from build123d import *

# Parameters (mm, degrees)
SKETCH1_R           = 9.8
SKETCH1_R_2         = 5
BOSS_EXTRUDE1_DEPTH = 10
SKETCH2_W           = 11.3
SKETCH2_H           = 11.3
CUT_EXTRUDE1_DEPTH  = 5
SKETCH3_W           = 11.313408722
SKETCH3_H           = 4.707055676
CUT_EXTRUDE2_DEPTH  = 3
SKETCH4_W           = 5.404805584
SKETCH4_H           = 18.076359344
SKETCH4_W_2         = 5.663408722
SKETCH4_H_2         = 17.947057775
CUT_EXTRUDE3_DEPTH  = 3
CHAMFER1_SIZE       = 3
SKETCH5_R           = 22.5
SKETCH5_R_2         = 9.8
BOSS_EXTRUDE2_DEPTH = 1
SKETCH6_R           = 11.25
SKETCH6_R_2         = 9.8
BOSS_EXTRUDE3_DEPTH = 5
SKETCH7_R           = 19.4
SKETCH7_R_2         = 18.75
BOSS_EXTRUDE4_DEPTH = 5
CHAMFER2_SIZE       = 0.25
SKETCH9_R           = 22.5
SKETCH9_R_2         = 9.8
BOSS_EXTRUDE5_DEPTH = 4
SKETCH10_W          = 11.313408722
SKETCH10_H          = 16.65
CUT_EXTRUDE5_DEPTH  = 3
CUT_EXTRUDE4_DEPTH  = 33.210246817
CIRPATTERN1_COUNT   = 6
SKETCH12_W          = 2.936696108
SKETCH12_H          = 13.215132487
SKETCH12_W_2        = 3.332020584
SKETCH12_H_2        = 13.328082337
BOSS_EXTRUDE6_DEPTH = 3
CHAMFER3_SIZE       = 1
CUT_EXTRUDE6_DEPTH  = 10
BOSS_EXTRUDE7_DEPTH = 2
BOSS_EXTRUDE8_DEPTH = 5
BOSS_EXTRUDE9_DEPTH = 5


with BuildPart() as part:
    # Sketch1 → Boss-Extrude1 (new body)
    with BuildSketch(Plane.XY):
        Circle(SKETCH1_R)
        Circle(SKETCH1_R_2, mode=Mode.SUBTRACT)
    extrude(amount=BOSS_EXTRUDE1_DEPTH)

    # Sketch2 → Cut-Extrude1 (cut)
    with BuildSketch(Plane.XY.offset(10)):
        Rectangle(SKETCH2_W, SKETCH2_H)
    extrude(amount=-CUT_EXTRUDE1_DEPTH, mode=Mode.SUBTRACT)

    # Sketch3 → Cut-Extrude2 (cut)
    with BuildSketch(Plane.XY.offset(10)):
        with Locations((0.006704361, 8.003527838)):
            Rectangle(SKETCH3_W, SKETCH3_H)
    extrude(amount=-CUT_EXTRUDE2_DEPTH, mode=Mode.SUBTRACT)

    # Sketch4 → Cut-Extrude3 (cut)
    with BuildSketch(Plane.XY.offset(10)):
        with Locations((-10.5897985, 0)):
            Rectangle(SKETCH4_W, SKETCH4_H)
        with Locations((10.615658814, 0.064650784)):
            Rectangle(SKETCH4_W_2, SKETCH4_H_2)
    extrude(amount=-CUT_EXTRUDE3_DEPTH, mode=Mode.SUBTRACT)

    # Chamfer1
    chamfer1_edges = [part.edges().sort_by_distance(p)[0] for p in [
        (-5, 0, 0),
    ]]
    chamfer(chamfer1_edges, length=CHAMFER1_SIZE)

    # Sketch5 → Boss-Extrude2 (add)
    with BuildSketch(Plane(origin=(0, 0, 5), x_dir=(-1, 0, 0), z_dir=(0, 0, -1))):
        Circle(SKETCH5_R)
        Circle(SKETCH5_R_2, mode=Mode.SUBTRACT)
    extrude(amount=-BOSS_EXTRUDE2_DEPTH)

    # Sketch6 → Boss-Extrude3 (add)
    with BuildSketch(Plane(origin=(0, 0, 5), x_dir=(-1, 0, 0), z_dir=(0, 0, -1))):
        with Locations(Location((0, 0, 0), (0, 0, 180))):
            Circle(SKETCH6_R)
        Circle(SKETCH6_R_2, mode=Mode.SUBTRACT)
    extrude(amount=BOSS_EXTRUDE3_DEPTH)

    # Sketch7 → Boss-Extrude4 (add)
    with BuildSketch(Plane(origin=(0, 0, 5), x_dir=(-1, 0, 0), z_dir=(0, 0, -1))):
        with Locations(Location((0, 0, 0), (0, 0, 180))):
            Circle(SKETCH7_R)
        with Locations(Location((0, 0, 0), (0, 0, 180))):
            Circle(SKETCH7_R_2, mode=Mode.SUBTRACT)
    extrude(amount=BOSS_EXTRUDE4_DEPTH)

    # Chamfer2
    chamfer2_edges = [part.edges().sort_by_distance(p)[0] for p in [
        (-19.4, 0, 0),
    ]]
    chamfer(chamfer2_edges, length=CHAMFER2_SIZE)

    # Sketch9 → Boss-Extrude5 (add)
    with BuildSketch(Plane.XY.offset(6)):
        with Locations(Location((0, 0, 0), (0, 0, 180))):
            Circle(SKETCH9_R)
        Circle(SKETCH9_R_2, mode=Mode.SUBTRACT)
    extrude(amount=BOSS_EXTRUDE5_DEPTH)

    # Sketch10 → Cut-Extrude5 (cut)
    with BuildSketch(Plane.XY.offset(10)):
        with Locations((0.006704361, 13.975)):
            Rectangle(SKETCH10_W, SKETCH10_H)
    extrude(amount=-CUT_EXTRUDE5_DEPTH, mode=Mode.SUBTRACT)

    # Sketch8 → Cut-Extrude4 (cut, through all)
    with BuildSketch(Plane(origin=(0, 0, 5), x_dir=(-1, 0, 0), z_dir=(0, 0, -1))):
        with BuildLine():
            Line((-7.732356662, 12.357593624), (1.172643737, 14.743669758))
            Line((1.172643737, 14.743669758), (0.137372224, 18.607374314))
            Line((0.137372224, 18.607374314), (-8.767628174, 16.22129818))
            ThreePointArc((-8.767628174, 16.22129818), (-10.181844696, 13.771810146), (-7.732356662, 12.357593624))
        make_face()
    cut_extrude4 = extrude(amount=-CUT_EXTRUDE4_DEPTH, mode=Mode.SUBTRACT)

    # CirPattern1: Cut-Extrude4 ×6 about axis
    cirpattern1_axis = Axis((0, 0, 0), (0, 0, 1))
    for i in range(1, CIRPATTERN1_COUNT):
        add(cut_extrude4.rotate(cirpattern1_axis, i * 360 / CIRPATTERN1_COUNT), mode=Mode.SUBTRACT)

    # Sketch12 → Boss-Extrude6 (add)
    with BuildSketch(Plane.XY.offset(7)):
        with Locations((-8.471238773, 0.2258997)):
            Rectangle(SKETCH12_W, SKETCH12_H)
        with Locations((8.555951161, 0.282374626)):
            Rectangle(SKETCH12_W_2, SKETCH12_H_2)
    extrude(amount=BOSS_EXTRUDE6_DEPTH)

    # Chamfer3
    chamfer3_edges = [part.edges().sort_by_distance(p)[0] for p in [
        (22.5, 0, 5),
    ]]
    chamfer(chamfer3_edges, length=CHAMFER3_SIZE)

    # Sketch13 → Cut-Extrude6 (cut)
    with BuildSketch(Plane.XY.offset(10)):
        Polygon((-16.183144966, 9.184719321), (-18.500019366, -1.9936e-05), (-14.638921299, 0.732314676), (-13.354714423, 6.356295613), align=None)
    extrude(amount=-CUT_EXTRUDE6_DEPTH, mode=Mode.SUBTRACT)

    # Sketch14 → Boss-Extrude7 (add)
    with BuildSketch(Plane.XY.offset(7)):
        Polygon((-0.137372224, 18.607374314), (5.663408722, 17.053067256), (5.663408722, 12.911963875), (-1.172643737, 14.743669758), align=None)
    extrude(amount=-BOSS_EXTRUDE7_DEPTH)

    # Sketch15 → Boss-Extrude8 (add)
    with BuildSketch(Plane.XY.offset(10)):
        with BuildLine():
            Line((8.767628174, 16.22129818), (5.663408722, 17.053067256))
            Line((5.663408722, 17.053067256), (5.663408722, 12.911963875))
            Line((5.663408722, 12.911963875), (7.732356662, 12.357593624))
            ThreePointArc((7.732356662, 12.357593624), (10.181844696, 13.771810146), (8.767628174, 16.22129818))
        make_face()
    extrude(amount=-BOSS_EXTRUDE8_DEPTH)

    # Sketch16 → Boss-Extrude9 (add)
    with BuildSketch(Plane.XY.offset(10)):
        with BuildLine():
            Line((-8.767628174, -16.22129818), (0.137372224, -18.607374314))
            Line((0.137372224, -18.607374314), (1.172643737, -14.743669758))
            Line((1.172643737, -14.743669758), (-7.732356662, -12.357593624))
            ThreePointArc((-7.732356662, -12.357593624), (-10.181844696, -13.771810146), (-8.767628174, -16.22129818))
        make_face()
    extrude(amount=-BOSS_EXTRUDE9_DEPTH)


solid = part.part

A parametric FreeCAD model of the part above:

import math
import FreeCAD as App
import Part
import Sketcher

V = App.Vector


def edges_at(feature, points):
    """Names of the edges that pass closest to the given points."""
    edges = feature.Shape.Edges
    near = lambda p: min(range(len(edges)), key=lambda i: edges[i].distToShape(Part.Vertex(*p))[0])
    return sorted({f"Edge{near(p) + 1}" for p in points})

doc = App.newDocument("Part")
params = doc.addObject("Spreadsheet::Sheet", "Params")
for row, (alias, value) in enumerate([
    ("sketch1_diameter", "10 mm"),
    ("sketch1_diameter2", "19.6 mm"),
    ("pad1_length", "10 mm"),
    ("sketch2_width", "11.3 mm"),
    ("pocket1_length", "5 mm"),
    ("pocket2_length", "3 mm"),
    ("pocket3_length", "3 mm"),
    ("chamfer_size", "3 mm"),
    ("sketch5_diameter", "45 mm"),
    ("sketch5_diameter2", "19.6 mm"),
    ("pad2_length", "1 mm"),
    ("sketch6_diameter", "22.5 mm"),
    ("sketch6_diameter2", "19.6 mm"),
    ("pad3_length", "5 mm"),
    ("sketch7_diameter", "38.8 mm"),
    ("sketch7_diameter2", "37.5 mm"),
    ("pad4_length", "5 mm"),
    ("chamfer2_size", "0.25 mm"),
    ("sketch8_diameter", "45 mm"),
    ("sketch8_diameter2", "19.6 mm"),
    ("pad5_length", "4 mm"),
    ("sketch9_height", "16.65 mm"),
    ("pocket4_length", "3 mm"),
    ("sketch10_radius", "2 mm"),
    ("pad6_length", "3 mm"),
    ("chamfer3_size", "1 mm"),
    ("sketch12_length", "4 mm"),
    ("pocket6_length", "10 mm"),
    ("sketch13_length", "4 mm"),
    ("pad7_length", "2 mm"),
    ("sketch14_radius", "2 mm"),
    ("pad8_length", "5 mm"),
    ("sketch15_radius", "2 mm"),
    ("pad9_length", "5 mm"),
], start=1):
    params.set(f"A{row}", alias)
    params.set(f"B{row}", "=" + value)
    params.setAlias(f"B{row}", alias)

body = doc.addObject("PartDesign::Body", "Body")

# Sketch on XY plane
sketch1 = body.newObject("Sketcher::SketchObject", "Sketch")
sketch1.AttachmentSupport = (doc.getObject("XY_Plane"), [""])
sketch1.MapMode = "FlatFace"
sketch1.addGeometry([
    Part.Circle(V(0, 0, 0), V(0, 0, 1), 10),
    Part.Circle(V(0, 0, 0), V(0, 0, 1), 5),
], False)
sketch1.addConstraint([
    Sketcher.Constraint("Coincident", 0, 3, -1, 1),
    Sketcher.Constraint("Coincident", 1, 3, -1, 1),
    Sketcher.Constraint("Diameter", 1, 10.0),
    Sketcher.Constraint("Diameter", 0, 19.6),
])
sketch1.setExpression("Constraints[2]", "Params.sketch1_diameter")
sketch1.setExpression("Constraints[3]", "Params.sketch1_diameter2")
pad1 = body.newObject("PartDesign::Pad", "Pad")
pad1.Profile = sketch1
pad1.setExpression("Length", "Params.pad1_length")

# Sketch on XY plane
sketch2 = body.newObject("Sketcher::SketchObject", "Sketch001")
sketch2.AttachmentSupport = (doc.getObject("XY_Plane"), [""])
sketch2.MapMode = "FlatFace"
sketch2.AttachmentOffset = App.Placement(V(0, 0, 10), App.Rotation())
sketch2.addGeometry([
    Part.LineSegment(V(-6, 6, 0), V(-6, -6, 0)),
    Part.LineSegment(V(-6, -6, 0), V(6, -6, 0)),
    Part.LineSegment(V(6, -6, 0), V(6, 6, 0)),
    Part.LineSegment(V(6, 6, 0), V(-6, 6, 0)),
], False)
sketch2.addConstraint([
    Sketcher.Constraint("Coincident", 0, 2, 1, 1),
    Sketcher.Constraint("Coincident", 1, 2, 2, 1),
    Sketcher.Constraint("Coincident", 2, 2, 3, 1),
    Sketcher.Constraint("Coincident", 3, 2, 0, 1),
    Sketcher.Constraint("Vertical", 0),
    Sketcher.Constraint("Horizontal", 1),
    Sketcher.Constraint("Vertical", 2),
    Sketcher.Constraint("Horizontal", 3),
    Sketcher.Constraint("Symmetric", 0, 2, 2, 2, -1, 1),
    Sketcher.Constraint("Equal", 3, 0),
    Sketcher.Constraint("DistanceX", 1, 1, 1, 2, 11.3),
])
sketch2.setExpression("Constraints[10]", "Params.sketch2_width")
pocket1 = body.newObject("PartDesign::Pocket", "Pocket")
pocket1.Profile = sketch2
pocket1.setExpression("Length", "Params.pocket1_length")

# Sketch on XY plane
sketch3 = body.newObject("Sketcher::SketchObject", "Sketch002")
sketch3.AttachmentSupport = (doc.getObject("XY_Plane"), [""])
sketch3.MapMode = "FlatFace"
sketch3.AttachmentOffset = App.Placement(V(0, 0, 10), App.Rotation())
sketch3.addGeometry([
    Part.LineSegment(V(-5.7, 10.4, 0), V(-5.7, 5.7, 0)),
    Part.LineSegment(V(-5.7, 5.7, 0), V(5.7, 5.7, 0)),
    Part.LineSegment(V(5.7, 5.7, 0), V(5.7, 10.4, 0)),
    Part.LineSegment(V(5.7, 10.4, 0), V(-5.7, 10.4, 0)),
], False)
sketch3.addConstraint([
    Sketcher.Constraint("Coincident", 0, 2, 1, 1),
    Sketcher.Constraint("Coincident", 1, 2, 2, 1),
    Sketcher.Constraint("Coincident", 2, 2, 3, 1),
    Sketcher.Constraint("Coincident", 3, 2, 0, 1),
    Sketcher.Constraint("Vertical", 0),
    Sketcher.Constraint("Horizontal", 1),
    Sketcher.Constraint("Vertical", 2),
    Sketcher.Constraint("Horizontal", 3),
    Sketcher.Constraint("DistanceX", 0, 2, -1, 1, 5.65),
    Sketcher.Constraint("DistanceY", -1, 1, 0, 2, 5.65),
    Sketcher.Constraint("DistanceX", 1, 1, 1, 2, 11.313409),
    Sketcher.Constraint("DistanceY", 0, 2, 0, 1, 4.707056),
])
pocket2 = body.newObject("PartDesign::Pocket", "Pocket001")
pocket2.Profile = sketch3
pocket2.setExpression("Length", "Params.pocket2_length")

# Sketch on XY plane
sketch4 = body.newObject("Sketcher::SketchObject", "Sketch003")
sketch4.AttachmentSupport = (doc.getObject("XY_Plane"), [""])
sketch4.MapMode = "FlatFace"
sketch4.AttachmentOffset = App.Placement(V(0, 0, 10), App.Rotation())
sketch4.addGeometry([
    Part.LineSegment(V(-13, 9, 0), V(-13, -9, 0)),  # 0
    Part.LineSegment(V(-13, -9, 0), V(-8, -9, 0)),  # 1
    Part.LineSegment(V(-8, -9, 0), V(-8, 9, 0)),  # 2
    Part.LineSegment(V(-8, 9, 0), V(-13, 9, 0)),  # 3
    Part.LineSegment(V(8, 9, 0), V(8, -9, 0)),  # 4
    Part.LineSegment(V(8, -9, 0), V(13, -9, 0)),  # 5
    Part.LineSegment(V(13, -9, 0), V(13, 9, 0)),  # 6
    Part.LineSegment(V(13, 9, 0), V(8, 9, 0)),  # 7
], False)
sketch4.addConstraint([
    Sketcher.Constraint("Coincident", 0, 2, 1, 1),
    Sketcher.Constraint("Coincident", 1, 2, 2, 1),
    Sketcher.Constraint("Coincident", 2, 2, 3, 1),
    Sketcher.Constraint("Coincident", 3, 2, 0, 1),
    Sketcher.Constraint("Coincident", 4, 2, 5, 1),
    Sketcher.Constraint("Coincident", 5, 2, 6, 1),
    Sketcher.Constraint("Coincident", 6, 2, 7, 1),
    Sketcher.Constraint("Coincident", 7, 2, 4, 1),
    Sketcher.Constraint("Vertical", 0),
    Sketcher.Constraint("Horizontal", 1),
    Sketcher.Constraint("Vertical", 2),
    Sketcher.Constraint("Horizontal", 3),
    Sketcher.Constraint("Vertical", 4),
    Sketcher.Constraint("Horizontal", 5),
    Sketcher.Constraint("Vertical", 6),
    Sketcher.Constraint("Horizontal", 7),
    Sketcher.Constraint("Horizontal", 3, 2, 6, 2),
    Sketcher.Constraint("DistanceX", 5, 1, 5, 2, 5.663409),
    Sketcher.Constraint("DistanceY", 0, 2, 0, 1, 18.076359),
    Sketcher.Constraint("DistanceX", 0, 2, -1, 1, 13.292201),
    Sketcher.Constraint("DistanceY", 1, 2, 4, 2, 0.129302),
    Sketcher.Constraint("DistanceX", 1, 1, 1, 2, 5.404806),
    Sketcher.Constraint("DistanceY", 0, 2, -1, 1, 9.03818),
    Sketcher.Constraint("DistanceX", 1, 2, 4, 2, 15.67135),
])
pocket3 = body.newObject("PartDesign::Pocket", "Pocket002")
pocket3.Profile = sketch4
pocket3.setExpression("Length", "Params.pocket3_length")
doc.recompute()

chamfer = body.newObject("PartDesign::Chamfer", "Chamfer")
chamfer.Base = (pocket3, edges_at(pocket3, [(-5, 0, 0)]))
chamfer.setExpression("Size", "Params.chamfer_size")

# Sketch on XY plane
sketch5 = body.newObject("Sketcher::SketchObject", "Sketch004")
sketch5.AttachmentSupport = (doc.getObject("XY_Plane"), [""])
sketch5.MapMode = "FlatFace"
sketch5.AttachmentOffset = App.Placement(V(0, 0, 5), App.Rotation())
sketch5.addGeometry([
    Part.Circle(V(0, 0, 0), V(0, 0, 1), 22),
    Part.Circle(V(0, 0, 0), V(0, 0, 1), 10),
], False)
sketch5.addConstraint([
    Sketcher.Constraint("Coincident", 0, 3, -1, 1),
    Sketcher.Constraint("Coincident", 1, 3, -1, 1),
    Sketcher.Constraint("Diameter", 0, 45.0),
    Sketcher.Constraint("Diameter", 1, 19.6),
])
sketch5.setExpression("Constraints[2]", "Params.sketch5_diameter")
sketch5.setExpression("Constraints[3]", "Params.sketch5_diameter2")
pad2 = body.newObject("PartDesign::Pad", "Pad001")
pad2.Profile = sketch5
pad2.setExpression("Length", "Params.pad2_length")

# Sketch on XY plane
sketch6 = body.newObject("Sketcher::SketchObject", "Sketch005")
sketch6.AttachmentSupport = (doc.getObject("XY_Plane"), [""])
sketch6.MapMode = "FlatFace"
sketch6.AttachmentOffset = App.Placement(V(0, 0, 5), App.Rotation())
sketch6.addGeometry([
    Part.Circle(V(0, 0, 0), V(0, 0, 1), 11),
    Part.Circle(V(0, 0, 0), V(0, 0, 1), 10),
], False)
sketch6.addConstraint([
    Sketcher.Constraint("Coincident", 0, 3, -1, 1),
    Sketcher.Constraint("Coincident", 1, 3, -1, 1),
    Sketcher.Constraint("Diameter", 0, 22.5),
    Sketcher.Constraint("Diameter", 1, 19.6),
])
sketch6.setExpression("Constraints[2]", "Params.sketch6_diameter")
sketch6.setExpression("Constraints[3]", "Params.sketch6_diameter2")
pad3 = body.newObject("PartDesign::Pad", "Pad002")
pad3.Profile = sketch6
pad3.setExpression("Length", "Params.pad3_length")
pad3.Reversed = True

# Sketch on XY plane
sketch7 = body.newObject("Sketcher::SketchObject", "Sketch006")
sketch7.AttachmentSupport = (doc.getObject("XY_Plane"), [""])
sketch7.MapMode = "FlatFace"
sketch7.AttachmentOffset = App.Placement(V(0, 0, 5), App.Rotation())
sketch7.addGeometry([
    Part.Circle(V(0, 0, 0), V(0, 0, 1), 19),
    Part.Circle(V(0, 0, 0), V(0, 0, 1), 19),
], False)
sketch7.addConstraint([
    Sketcher.Constraint("Coincident", 0, 3, -1, 1),
    Sketcher.Constraint("Coincident", 1, 3, -1, 1),
    Sketcher.Constraint("Diameter", 0, 38.8),
    Sketcher.Constraint("Diameter", 1, 37.5),
])
sketch7.setExpression("Constraints[2]", "Params.sketch7_diameter")
sketch7.setExpression("Constraints[3]", "Params.sketch7_diameter2")
pad4 = body.newObject("PartDesign::Pad", "Pad003")
pad4.Profile = sketch7
pad4.setExpression("Length", "Params.pad4_length")
pad4.Reversed = True
doc.recompute()

chamfer2 = body.newObject("PartDesign::Chamfer", "Chamfer001")
chamfer2.Base = (pad4, edges_at(pad4, [(-19.4, 0, 0)]))
chamfer2.setExpression("Size", "Params.chamfer2_size")

# Sketch on XY plane
sketch8 = body.newObject("Sketcher::SketchObject", "Sketch007")
sketch8.AttachmentSupport = (doc.getObject("XY_Plane"), [""])
sketch8.MapMode = "FlatFace"
sketch8.AttachmentOffset = App.Placement(V(0, 0, 6), App.Rotation())
sketch8.addGeometry([
    Part.Circle(V(0, 0, 0), V(0, 0, 1), 22),
    Part.Circle(V(0, 0, 0), V(0, 0, 1), 10),
], False)
sketch8.addConstraint([
    Sketcher.Constraint("Coincident", 0, 3, -1, 1),
    Sketcher.Constraint("Coincident", 1, 3, -1, 1),
    Sketcher.Constraint("Diameter", 0, 45.0),
    Sketcher.Constraint("Diameter", 1, 19.6),
])
sketch8.setExpression("Constraints[2]", "Params.sketch8_diameter")
sketch8.setExpression("Constraints[3]", "Params.sketch8_diameter2")
pad5 = body.newObject("PartDesign::Pad", "Pad004")
pad5.Profile = sketch8
pad5.setExpression("Length", "Params.pad5_length")

# Sketch on XY plane
sketch9 = body.newObject("Sketcher::SketchObject", "Sketch008")
sketch9.AttachmentSupport = (doc.getObject("XY_Plane"), [""])
sketch9.MapMode = "FlatFace"
sketch9.AttachmentOffset = App.Placement(V(0, 0, 10), App.Rotation())
sketch9.addGeometry([
    Part.LineSegment(V(-6, 22, 0), V(-6, 6, 0)),
    Part.LineSegment(V(-6, 6, 0), V(6, 6, 0)),
    Part.LineSegment(V(6, 6, 0), V(6, 22, 0)),
    Part.LineSegment(V(6, 22, 0), V(-6, 22, 0)),
], False)
sketch9.addConstraint([
    Sketcher.Constraint("Coincident", 0, 2, 1, 1),
    Sketcher.Constraint("Coincident", 1, 2, 2, 1),
    Sketcher.Constraint("Coincident", 2, 2, 3, 1),
    Sketcher.Constraint("Coincident", 3, 2, 0, 1),
    Sketcher.Constraint("Vertical", 0),
    Sketcher.Constraint("Horizontal", 1),
    Sketcher.Constraint("Vertical", 2),
    Sketcher.Constraint("Horizontal", 3),
    Sketcher.Constraint("DistanceY", 0, 2, 0, 1, 16.65),
    Sketcher.Constraint("DistanceY", -1, 1, 2, 2, 22.3),
    Sketcher.Constraint("DistanceX", 0, 2, -1, 1, 5.65),
    Sketcher.Constraint("DistanceX", 1, 1, 1, 2, 11.313409),
])
sketch9.setExpression("Constraints[8]", "Params.sketch9_height")
pocket4 = body.newObject("PartDesign::Pocket", "Pocket003")
pocket4.Profile = sketch9
pocket4.setExpression("Length", "Params.pocket4_length")

# Sketch on XY plane
sketch10 = body.newObject("Sketcher::SketchObject", "Sketch009")
sketch10.AttachmentSupport = (doc.getObject("XY_Plane"), [""])
sketch10.MapMode = "FlatFace"
sketch10.AttachmentOffset = App.Placement(V(0, 0, 5), App.Rotation())
sketch10.addGeometry([
    Part.LineSegment(V(7.7, 12.4, 0), V(-1.2, 14.7, 0)),
    Part.LineSegment(V(-1.2, 14.7, 0), V(-0.1, 18.6, 0)),
    Part.LineSegment(V(-0.1, 18.6, 0), V(8.8, 16.2, 0)),
    Part.ArcOfCircle(Part.Circle(V(8.2, 14.3, 0), V(0, 0, 1), 2), math.radians(-105), math.radians(75)),
], False)
sketch10.addConstraint([
    Sketcher.Constraint("Coincident", 0, 2, 1, 1),
    Sketcher.Constraint("Coincident", 1, 2, 2, 1),
    Sketcher.Constraint("Tangent", 2, 2, 3, 2),
    Sketcher.Constraint("Tangent", 3, 1, 0, 1),
    Sketcher.Constraint("Perpendicular", 0, 1),
    Sketcher.Constraint("Perpendicular", 1, 2),
    Sketcher.Constraint("Radius", 3, 2.0),
    Sketcher.Constraint("DistanceX", 1, 2, 2, 2, 8.905),
    Sketcher.Constraint("DistanceY", -1, 1, 2, 2, 16.221298),
    Sketcher.Constraint("Distance", 0, 9.219132),
    Sketcher.Constraint("DistanceX", -1, 1, 2, 2, 8.767628),
])
sketch10.setExpression("Constraints[6]", "Params.sketch10_radius")
pocket5 = body.newObject("PartDesign::Pocket", "Pocket004")
pocket5.Profile = sketch10
pocket5.Type = "ThroughAll"
pocket5.Reversed = True
doc.recompute()

polarpattern = body.newObject("PartDesign::PolarPattern", "PolarPattern")
polarpattern.Originals = [pocket5]
polarpattern.Axis = (doc.getObject("Z_Axis"), [""])
polarpattern.Angle = 360
polarpattern.Occurrences = 6
body.Tip = polarpattern

# Sketch on XY plane
sketch11 = body.newObject("Sketcher::SketchObject", "Sketch010")
sketch11.AttachmentSupport = (doc.getObject("XY_Plane"), [""])
sketch11.MapMode = "FlatFace"
sketch11.AttachmentOffset = App.Placement(V(0, 0, 7), App.Rotation())
sketch11.addGeometry([
    Part.LineSegment(V(-9.9, 6.8, 0), V(-9.9, -6.4, 0)),  # 0
    Part.LineSegment(V(-9.9, -6.4, 0), V(-7, -6.4, 0)),  # 1
    Part.LineSegment(V(-7, -6.4, 0), V(-7, 6.8, 0)),  # 2
    Part.LineSegment(V(-7, 6.8, 0), V(-9.9, 6.8, 0)),  # 3
    Part.LineSegment(V(6.9, 6.9, 0), V(6.9, -6.4, 0)),  # 4
    Part.LineSegment(V(6.9, -6.4, 0), V(10.2, -6.4, 0)),  # 5
    Part.LineSegment(V(10.2, -6.4, 0), V(10.2, 6.9, 0)),  # 6
    Part.LineSegment(V(10.2, 6.9, 0), V(6.9, 6.9, 0)),  # 7
], False)
sketch11.addConstraint([
    Sketcher.Constraint("Coincident", 0, 2, 1, 1),
    Sketcher.Constraint("Coincident", 1, 2, 2, 1),
    Sketcher.Constraint("Coincident", 2, 2, 3, 1),
    Sketcher.Constraint("Coincident", 3, 2, 0, 1),
    Sketcher.Constraint("Coincident", 4, 2, 5, 1),
    Sketcher.Constraint("Coincident", 5, 2, 6, 1),
    Sketcher.Constraint("Coincident", 6, 2, 7, 1),
    Sketcher.Constraint("Coincident", 7, 2, 4, 1),
    Sketcher.Constraint("Vertical", 0),
    Sketcher.Constraint("Horizontal", 1),
    Sketcher.Constraint("Vertical", 2),
    Sketcher.Constraint("Horizontal", 3),
    Sketcher.Constraint("Vertical", 4),
    Sketcher.Constraint("Horizontal", 5),
    Sketcher.Constraint("Vertical", 6),
    Sketcher.Constraint("Horizontal", 7),
    Sketcher.Constraint("Horizontal", 1, 2, 4, 2),
    Sketcher.Constraint("DistanceX", 5, 1, 5, 2, 3.332021),
    Sketcher.Constraint("DistanceX", 1, 1, 1, 2, 2.936696),
    Sketcher.Constraint("DistanceY", 0, 2, 0, 1, 13.215132),
    Sketcher.Constraint("DistanceY", 4, 2, 4, 1, 13.328082),
    Sketcher.Constraint("DistanceX", 1, 2, -1, 1, 7.002891),
    Sketcher.Constraint("DistanceX", -1, 1, 4, 2, 6.889941),
    Sketcher.Constraint("DistanceY", 0, 2, -1, 1, 6.381667),
])
pad6 = body.newObject("PartDesign::Pad", "Pad005")
pad6.Profile = sketch11
pad6.setExpression("Length", "Params.pad6_length")
doc.recompute()

chamfer3 = body.newObject("PartDesign::Chamfer", "Chamfer002")
chamfer3.Base = (pad6, edges_at(pad6, [(22.5, 0, 5)]))
chamfer3.setExpression("Size", "Params.chamfer3_size")

# Sketch on XY plane
sketch12 = body.newObject("Sketcher::SketchObject", "Sketch011")
sketch12.AttachmentSupport = (doc.getObject("XY_Plane"), [""])
sketch12.MapMode = "FlatFace"
sketch12.AttachmentOffset = App.Placement(V(0, 0, 10), App.Rotation())
sketch12.addGeometry([
    Part.LineSegment(V(-16.2, 9.2, 0), V(-18.5, 0, 0)),
    Part.LineSegment(V(-18.5, 0, 0), V(-14.6, 0.7, 0)),
    Part.LineSegment(V(-14.6, 0.7, 0), V(-13.4, 6.4, 0)),
    Part.LineSegment(V(-13.4, 6.4, 0), V(-16.2, 9.2, 0)),
], False)
sketch12.addConstraint([
    Sketcher.Constraint("Coincident", 0, 2, 1, 1),
    Sketcher.Constraint("Coincident", 1, 2, 2, 1),
    Sketcher.Constraint("Coincident", 2, 2, 3, 1),
    Sketcher.Constraint("Coincident", 3, 2, 0, 1),
    Sketcher.Constraint("Distance", 3, 4.0),
    Sketcher.Constraint("DistanceX", 0, 2, 1, 2, 3.861098),
    Sketcher.Constraint("Distance", 0, 9.472452),
    Sketcher.Constraint("Distance", 2, 5.768739),
    Sketcher.Constraint("DistanceX", 0, 2, -1, 1, 18.500019),
    Sketcher.Constraint("DistanceY", -1, 1, 3, 2, 9.184719),
    Sketcher.Constraint("DistanceY", 1, 2, 2, 2, 5.623981),
    Sketcher.Constraint("DistanceX", 3, 2, 2, 2, 2.828431),
])
sketch12.setExpression("Constraints[4]", "Params.sketch12_length")
pocket6 = body.newObject("PartDesign::Pocket", "Pocket005")
pocket6.Profile = sketch12
pocket6.setExpression("Length", "Params.pocket6_length")

# Sketch on XY plane
sketch13 = body.newObject("Sketcher::SketchObject", "Sketch012")
sketch13.AttachmentSupport = (doc.getObject("XY_Plane"), [""])
sketch13.MapMode = "FlatFace"
sketch13.AttachmentOffset = App.Placement(V(0, 0, 7), App.Rotation())
sketch13.addGeometry([
    Part.LineSegment(V(5.7, 17.1, 0), V(-0.1, 18.6, 0)),
    Part.LineSegment(V(-0.1, 18.6, 0), V(-1.2, 14.7, 0)),
    Part.LineSegment(V(-1.2, 14.7, 0), V(5.7, 12.9, 0)),
    Part.LineSegment(V(5.7, 12.9, 0), V(5.7, 17.1, 0)),
], False)
sketch13.addConstraint([
    Sketcher.Constraint("Coincident", 0, 2, 1, 1),
    Sketcher.Constraint("Coincident", 1, 2, 2, 1),
    Sketcher.Constraint("Coincident", 2, 2, 3, 1),
    Sketcher.Constraint("Coincident", 3, 2, 0, 1),
    Sketcher.Constraint("Vertical", 3),
    Sketcher.Constraint("Perpendicular", 0, 1),
    Sketcher.Constraint("Perpendicular", 1, 2),
    Sketcher.Constraint("Distance", 1, 4.0),
    Sketcher.Constraint("Distance", 2, 7.0772),
    Sketcher.Constraint("Distance", 0, 6.005408),
    Sketcher.Constraint("DistanceY", -1, 1, 1, 2, 14.74367),
    Sketcher.Constraint("DistanceX", -1, 1, 2, 2, 5.663409),
])
sketch13.setExpression("Constraints[7]", "Params.sketch13_length")
pad7 = body.newObject("PartDesign::Pad", "Pad006")
pad7.Profile = sketch13
pad7.setExpression("Length", "Params.pad7_length")
pad7.Reversed = True

# Sketch on XY plane
sketch14 = body.newObject("Sketcher::SketchObject", "Sketch013")
sketch14.AttachmentSupport = (doc.getObject("XY_Plane"), [""])
sketch14.MapMode = "FlatFace"
sketch14.AttachmentOffset = App.Placement(V(0, 0, 10), App.Rotation())
sketch14.addGeometry([
    Part.LineSegment(V(8.8, 16.2, 0), V(5.7, 17.1, 0)),
    Part.LineSegment(V(5.7, 17.1, 0), V(5.7, 12.9, 0)),
    Part.LineSegment(V(5.7, 12.9, 0), V(7.7, 12.4, 0)),
    Part.ArcOfCircle(Part.Circle(V(8.2, 14.3, 0), V(0, 0, 1), 2), math.radians(-105), math.radians(75)),
], False)
sketch14.addConstraint([
    Sketcher.Constraint("Coincident", 0, 2, 1, 1),
    Sketcher.Constraint("Coincident", 1, 2, 2, 1),
    Sketcher.Constraint("Tangent", 2, 2, 3, 1),
    Sketcher.Constraint("Tangent", 3, 2, 0, 1),
    Sketcher.Constraint("Vertical", 1),
    Sketcher.Constraint("Parallel", 0, 2),
    Sketcher.Constraint("Radius", 3, 2.0),
    Sketcher.Constraint("DistanceY", -1, 1, 3, 2, 16.221298),
    Sketcher.Constraint("Distance", 2, 2.141932),
    Sketcher.Constraint("DistanceY", 1, 2, 1, 1, 4.141103),
    Sketcher.Constraint("DistanceX", -1, 1, 0, 2, 5.663409),
])
sketch14.setExpression("Constraints[6]", "Params.sketch14_radius")
pad8 = body.newObject("PartDesign::Pad", "Pad007")
pad8.Profile = sketch14
pad8.setExpression("Length", "Params.pad8_length")
pad8.Reversed = True

# Sketch on XY plane
sketch15 = body.newObject("Sketcher::SketchObject", "Sketch014")
sketch15.AttachmentSupport = (doc.getObject("XY_Plane"), [""])
sketch15.MapMode = "FlatFace"
sketch15.AttachmentOffset = App.Placement(V(0, 0, 10), App.Rotation())
sketch15.addGeometry([
    Part.LineSegment(V(-8.8, -16.2, 0), V(0.1, -18.6, 0)),
    Part.LineSegment(V(0.1, -18.6, 0), V(1.2, -14.7, 0)),
    Part.LineSegment(V(1.2, -14.7, 0), V(-7.7, -12.4, 0)),
    Part.ArcOfCircle(Part.Circle(V(-8.2, -14.3, 0), V(0, 0, 1), 2), math.radians(75), math.radians(255)),
], False)
sketch15.addConstraint([
    Sketcher.Constraint("Coincident", 0, 2, 1, 1),
    Sketcher.Constraint("Coincident", 1, 2, 2, 1),
    Sketcher.Constraint("Tangent", 2, 2, 3, 1),
    Sketcher.Constraint("Tangent", 3, 2, 0, 1),
    Sketcher.Constraint("Perpendicular", 0, 1),
    Sketcher.Constraint("Perpendicular", 1, 2),
    Sketcher.Constraint("Radius", 3, 2.0),
    Sketcher.Constraint("DistanceX", 2, 2, 1, 2, 8.905),
    Sketcher.Constraint("DistanceY", 3, 2, -1, 1, 16.221298),
    Sketcher.Constraint("Distance", 0, 9.219132),
    Sketcher.Constraint("DistanceX", 3, 2, -1, 1, 8.767628),
])
sketch15.setExpression("Constraints[6]", "Params.sketch15_radius")
pad9 = body.newObject("PartDesign::Pad", "Pad008")
pad9.Profile = sketch15
pad9.setExpression("Length", "Params.pad9_length")
pad9.Reversed = True

doc.recompute()
